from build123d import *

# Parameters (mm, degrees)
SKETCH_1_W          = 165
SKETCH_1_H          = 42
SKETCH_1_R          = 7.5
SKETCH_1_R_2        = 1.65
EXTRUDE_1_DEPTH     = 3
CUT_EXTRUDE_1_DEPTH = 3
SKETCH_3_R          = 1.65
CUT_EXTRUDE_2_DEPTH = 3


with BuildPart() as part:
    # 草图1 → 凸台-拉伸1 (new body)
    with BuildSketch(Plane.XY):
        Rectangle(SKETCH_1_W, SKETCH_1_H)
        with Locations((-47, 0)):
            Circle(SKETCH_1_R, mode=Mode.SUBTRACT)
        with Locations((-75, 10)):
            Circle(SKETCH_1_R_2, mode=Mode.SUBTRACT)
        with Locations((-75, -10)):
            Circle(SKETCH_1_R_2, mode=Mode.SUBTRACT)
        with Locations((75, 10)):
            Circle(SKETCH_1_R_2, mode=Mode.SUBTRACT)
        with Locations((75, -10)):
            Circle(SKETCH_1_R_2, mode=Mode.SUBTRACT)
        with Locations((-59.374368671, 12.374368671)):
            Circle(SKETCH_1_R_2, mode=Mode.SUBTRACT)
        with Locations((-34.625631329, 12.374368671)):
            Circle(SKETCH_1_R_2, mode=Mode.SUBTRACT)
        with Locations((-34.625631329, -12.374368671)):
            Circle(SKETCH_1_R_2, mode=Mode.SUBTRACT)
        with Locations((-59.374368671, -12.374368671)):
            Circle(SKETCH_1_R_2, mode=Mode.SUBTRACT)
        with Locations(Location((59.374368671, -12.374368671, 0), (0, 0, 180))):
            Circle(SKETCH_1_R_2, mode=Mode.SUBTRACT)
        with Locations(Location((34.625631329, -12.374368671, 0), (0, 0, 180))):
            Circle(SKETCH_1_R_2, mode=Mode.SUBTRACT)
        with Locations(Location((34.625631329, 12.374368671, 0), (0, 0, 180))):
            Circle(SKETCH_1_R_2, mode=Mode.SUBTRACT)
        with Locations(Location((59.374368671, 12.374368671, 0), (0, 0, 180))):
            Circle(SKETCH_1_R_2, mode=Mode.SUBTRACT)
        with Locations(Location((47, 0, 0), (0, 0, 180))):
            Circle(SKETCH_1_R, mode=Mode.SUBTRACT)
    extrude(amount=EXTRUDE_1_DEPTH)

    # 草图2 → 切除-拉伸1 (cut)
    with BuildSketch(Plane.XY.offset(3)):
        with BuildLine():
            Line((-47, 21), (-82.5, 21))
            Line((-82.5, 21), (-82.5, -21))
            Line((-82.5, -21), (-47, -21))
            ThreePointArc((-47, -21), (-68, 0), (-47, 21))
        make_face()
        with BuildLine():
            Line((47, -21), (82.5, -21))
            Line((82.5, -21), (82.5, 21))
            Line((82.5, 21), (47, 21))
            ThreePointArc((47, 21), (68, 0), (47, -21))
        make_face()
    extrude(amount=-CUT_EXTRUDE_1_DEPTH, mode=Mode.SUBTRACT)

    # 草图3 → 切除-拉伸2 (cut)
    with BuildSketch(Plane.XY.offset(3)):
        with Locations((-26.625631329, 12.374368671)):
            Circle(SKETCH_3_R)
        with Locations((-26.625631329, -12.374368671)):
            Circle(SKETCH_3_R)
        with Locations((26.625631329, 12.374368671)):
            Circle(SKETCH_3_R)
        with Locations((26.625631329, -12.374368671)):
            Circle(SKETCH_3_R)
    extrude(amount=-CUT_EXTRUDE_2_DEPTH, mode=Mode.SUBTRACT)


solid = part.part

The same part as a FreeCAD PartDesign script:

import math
import FreeCAD as App
import Part
import Sketcher
from FreeCAD import Vector


def add_polygon(sketch, points):
    """Adds a closed chain of lines whose ends are joined by coincident constraints."""
    first, n = sketch.GeometryCount, len(points)
    for a, b in zip(points, points[1:] + points[:1]):
        sketch.addGeometry(Part.LineSegment(App.Vector(*a, 0), App.Vector(*b, 0)), False)
    for i in range(n):
        sketch.addConstraint(Sketcher.Constraint("Coincident", first + i, 2, first + (i + 1) % n, 1))

doc = App.newDocument("Part")
params = doc.addObject("Spreadsheet::Sheet", "Params")
for row, (alias, value) in enumerate([
    ("sketch1_diameter", "15 mm"),
    ("sketch1_diameter2", "3.3 mm"),
    ("sketch1_width", "165 mm"),
    ("sketch1_height", "42 mm"),
    ("pad1_length", "3 mm"),
    ("sketch2_radius", "21 mm"),
    ("sketch2_width", "35.5 mm"),
    ("pocket1_length", "3 mm"),
    ("sketch3_diameter", "3.3 mm"),
    ("pocket2_length", "3 mm"),
], start=1):
    params.set(f"A{row}", alias)
    params.set(f"B{row}", "=" + value)
    params.setAlias(f"B{row}", alias)

body = doc.addObject("PartDesign::Body", "Body")

sketch1 = body.newObject("Sketcher::SketchObject", "Sketch")
sketch1.AttachmentSupport = (doc.getObject("XY_Plane"), [""])
sketch1.MapMode = "FlatFace"
add_polygon(sketch1, [(-82.5, 21), (-82.5, -21), (82.5, -21), (82.5, 21)])
sketch1.addGeometry(Part.Circle(Vector(-59.4, -12.4, 0), Vector(0, 0, 1), 1.6), False)
sketch1.addGeometry(Part.Circle(Vector(-75, -10, 0), Vector(0, 0, 1), 1.6), False)
sketch1.addGeometry(Part.Circle(Vector(-34.6, -12.4, 0), Vector(0, 0, 1), 1.6), False)
sketch1.addGeometry(Part.Circle(Vector(34.6, -12.4, 0), Vector(0, 0, 1), 1.6), False)
sketch1.addGeometry(Part.Circle(Vector(59.4, -12.4, 0), Vector(0, 0, 1), 1.6), False)
sketch1.addGeometry(Part.Circle(Vector(75, -10, 0), Vector(0, 0, 1), 1.6), False)
sketch1.addGeometry(Part.Circle(Vector(-47, 0, 0), Vector(0, 0, 1), 7.5), False)
sketch1.addGeometry(Part.Circle(Vector(-75, 10, 0), Vector(0, 0, 1), 1.6), False)
sketch1.addGeometry(Part.Circle(Vector(-59.4, 12.4, 0), Vector(0, 0, 1), 1.6), False)
sketch1.addGeometry(Part.Circle(Vector(-34.6, 12.4, 0), Vector(0, 0, 1), 1.6), False)
sketch1.addGeometry(Part.Circle(Vector(47, 0, 0), Vector(0, 0, 1), 7.5), False)
sketch1.addGeometry(Part.Circle(Vector(34.6, 12.4, 0), Vector(0, 0, 1), 1.6), False)
sketch1.addGeometry(Part.Circle(Vector(75, 10, 0), Vector(0, 0, 1), 1.6), False)
sketch1.addGeometry(Part.Circle(Vector(59.4, 12.4, 0), Vector(0, 0, 1), 1.6), False)
sketch1.addConstraint([
    Sketcher.Constraint("Vertical", 0),
    Sketcher.Constraint("Horizontal", 1),
    Sketcher.Constraint("Vertical", 2),
    Sketcher.Constraint("Horizontal", 3),
    Sketcher.Constraint("Equal", 4, 5),
    Sketcher.Constraint("Equal", 5, 6),
    Sketcher.Constraint("Equal", 6, 7),
    Sketcher.Constraint("Equal", 7, 8),
    Sketcher.Constraint("Equal", 8, 9),
    Sketcher.Constraint("Equal", 9, 11),
    Sketcher.Constraint("Equal", 11, 12),
    Sketcher.Constraint("Equal", 12, 13),
    Sketcher.Constraint("Equal", 10, 14),
    Sketcher.Constraint("Equal", 13, 15),
    Sketcher.Constraint("Equal", 15, 16),
    Sketcher.Constraint("Equal", 16, 17),
    Sketcher.Constraint("Symmetric", 9, 3, 11, 3, -1, 1),
    Sketcher.Constraint("Symmetric", 8, 3, 12, 3, -1, 1),
    Sketcher.Constraint("Symmetric", 7, 3, 13, 3, -1, 1),
    Sketcher.Constraint("Symmetric", 10, 3, 14, 3, -1, 1),
    Sketcher.Constraint("Symmetric", 6, 3, 15, 3, -1, 1),
    Sketcher.Constraint("Symmetric", 5, 3, 16, 3, -1, 1),
    Sketcher.Constraint("Symmetric", 4, 3, 17, 3, -1, 1),
    Sketcher.Constraint("Symmetric", 0, 2, 2, 2, -1, 1),
    Sketcher.Constraint("Symmetric", 6, 3, 7, 3, -2),
    Sketcher.Constraint("Symmetric", 4, 3, 8, 3, -2),
    Sketcher.Constraint("Symmetric", 5, 3, 9, 3, -2),
    Sketcher.Constraint("PointOnObject", 10, 3, -1),
    Sketcher.Constraint("Horizontal", 4, 3, 6, 3),
    Sketcher.Constraint("Diameter", 10, 15.0),
    Sketcher.Constraint("Diameter", 4, 3.3),
    Sketcher.Constraint("DistanceX", 1, 1, 1, 2, 165.0),
    Sketcher.Constraint("DistanceY", 0, 2, 0, 1, 42.0),
    Sketcher.Constraint("DistanceX", 5, 3, -1, 1, 75.0),
    Sketcher.Constraint("DistanceY", 5, 3, -1, 1, 10.0),
    Sketcher.Constraint("DistanceX", 10, 3, -1, 1, 47.0),
    Sketcher.Constraint("DistanceX", 4, 3, 7, 3, 94.0),
    Sketcher.Constraint("DistanceX", 4, 3, -1, 1, 59.374369),
    Sketcher.Constraint("DistanceY", 4, 3, -1, 1, 12.374369),
])
sketch1.setExpression("Constraints[33]", "Params.sketch1_diameter")
sketch1.setExpression("Constraints[34]", "Params.sketch1_diameter2")
sketch1.setExpression("Constraints[35]", "Params.sketch1_width")
sketch1.setExpression("Constraints[36]", "Params.sketch1_height")
pad1 = body.newObject("PartDesign::Pad", "Pad")
pad1.Profile = sketch1
pad1.setExpression("Length", "Params.pad1_length")

sketch2 = body.newObject("Sketcher::SketchObject", "Sketch001")
sketch2.AttachmentSupport = (doc.getObject("XY_Plane"), [""])
sketch2.MapMode = "FlatFace"
sketch2.AttachmentOffset = App.Placement(Vector(0, 0, 3), App.Rotation())
sketch2.addGeometry([
    Part.LineSegment(Vector(-47, 21, 0), Vector(-82, 21, 0)),
    Part.LineSegment(Vector(-82, 21, 0), Vector(-82, -21, 0)),
    Part.LineSegment(Vector(-82, -21, 0), Vector(-47, -21, 0)),
    Part.ArcOfCircle(Part.Circle(Vector(-47, 0, 0), Vector(0, 0, 1), 21), math.radians(90), math.radians(270)),
    Part.LineSegment(Vector(47, -21, 0), Vector(82, -21, 0)),
    Part.LineSegment(Vector(82, -21, 0), Vector(82, 21, 0)),
    Part.LineSegment(Vector(82, 21, 0), Vector(47, 21, 0)),
    Part.ArcOfCircle(Part.Circle(Vector(47, 0, 0), Vector(0, 0, 1), 21), math.radians(-90), math.radians(90)),
], False)
sketch2.addConstraint([
    Sketcher.Constraint("Coincident", 0, 2, 1, 1),
    Sketcher.Constraint("Coincident", 1, 2, 2, 1),
    Sketcher.Constraint("Tangent", 2, 2, 3, 2),
    Sketcher.Constraint("Tangent", 3, 1, 0, 1),
    Sketcher.Constraint("Coincident", 4, 2, 5, 1),
    Sketcher.Constraint("Coincident", 5, 2, 6, 1),
    Sketcher.Constraint("Tangent", 6, 2, 7, 2),
    Sketcher.Constraint("Tangent", 7, 1, 4, 1),
    Sketcher.Constraint("Horizontal", 0),
    Sketcher.Constraint("Vertical", 1),
    Sketcher.Constraint("Horizontal", 2),
    Sketcher.Constraint("Horizontal", 4),
    Sketcher.Constraint("Vertical", 5),
    Sketcher.Constraint("Horizontal", 6),
    Sketcher.Constraint("Equal", 3, 7),
    Sketcher.Constraint("Symmetric", 3, 3, 7, 3, -1, 1),
    Sketcher.Constraint("Symmetric", 1, 2, 4, 2, -2),
    Sketcher.Constraint("Radius", 3, 21.0),
    Sketcher.Constraint("DistanceX", 0, 2, 0, 1, 35.5),
    Sketcher.Constraint("DistanceX", 3, 3, -1, 1, 47.0),
])
sketch2.setExpression("Constraints[17]", "Params.sketch2_radius")
sketch2.setExpression("Constraints[18]", "Params.sketch2_width")
pocket1 = body.newObject("PartDesign::Pocket", "Pocket")
pocket1.Profile = sketch2
pocket1.setExpression("Length", "Params.pocket1_length")

sketch3 = body.newObject("Sketcher::SketchObject", "Sketch002")
sketch3.AttachmentSupport = (doc.getObject("XY_Plane"), [""])
sketch3.MapMode = "FlatFace"
sketch3.AttachmentOffset = App.Placement(Vector(0, 0, 3), App.Rotation())
sketch3.addGeometry([
    Part.Circle(Vector(-26.6, 12.4, 0), Vector(0, 0, 1), 1.6),
    Part.Circle(Vector(-26.6, -12.4, 0), Vector(0, 0, 1), 1.6),
    Part.Circle(Vector(26.6, 12.4, 0), Vector(0, 0, 1), 1.6),
    Part.Circle(Vector(26.6, -12.4, 0), Vector(0, 0, 1), 1.6),
], False)
sketch3.addConstraint([
    Sketcher.Constraint("Equal", 0, 1),
    Sketcher.Constraint("Equal", 1, 2),
    Sketcher.Constraint("Equal", 2, 3),
    Sketcher.Constraint("Symmetric", 1, 3, 2, 3, -1, 1),
    Sketcher.Constraint("Symmetric", 0, 3, 3, 3, -1, 1),
    Sketcher.Constraint("Symmetric", 0, 3, 2, 3, -2),
    Sketcher.Constraint("Diameter", 0, 3.3),
    Sketcher.Constraint("DistanceX", 0, 3, -1, 1, 26.625631),
    Sketcher.Constraint("DistanceY", -1, 1, 0, 3, 12.374369),
])
sketch3.setExpression("Constraints[6]", "Params.sketch3_diameter")
pocket2 = body.newObject("PartDesign::Pocket", "Pocket001")
pocket2.Profile = sketch3
pocket2.setExpression("Length", "Params.pocket2_length")

doc.recompute()
